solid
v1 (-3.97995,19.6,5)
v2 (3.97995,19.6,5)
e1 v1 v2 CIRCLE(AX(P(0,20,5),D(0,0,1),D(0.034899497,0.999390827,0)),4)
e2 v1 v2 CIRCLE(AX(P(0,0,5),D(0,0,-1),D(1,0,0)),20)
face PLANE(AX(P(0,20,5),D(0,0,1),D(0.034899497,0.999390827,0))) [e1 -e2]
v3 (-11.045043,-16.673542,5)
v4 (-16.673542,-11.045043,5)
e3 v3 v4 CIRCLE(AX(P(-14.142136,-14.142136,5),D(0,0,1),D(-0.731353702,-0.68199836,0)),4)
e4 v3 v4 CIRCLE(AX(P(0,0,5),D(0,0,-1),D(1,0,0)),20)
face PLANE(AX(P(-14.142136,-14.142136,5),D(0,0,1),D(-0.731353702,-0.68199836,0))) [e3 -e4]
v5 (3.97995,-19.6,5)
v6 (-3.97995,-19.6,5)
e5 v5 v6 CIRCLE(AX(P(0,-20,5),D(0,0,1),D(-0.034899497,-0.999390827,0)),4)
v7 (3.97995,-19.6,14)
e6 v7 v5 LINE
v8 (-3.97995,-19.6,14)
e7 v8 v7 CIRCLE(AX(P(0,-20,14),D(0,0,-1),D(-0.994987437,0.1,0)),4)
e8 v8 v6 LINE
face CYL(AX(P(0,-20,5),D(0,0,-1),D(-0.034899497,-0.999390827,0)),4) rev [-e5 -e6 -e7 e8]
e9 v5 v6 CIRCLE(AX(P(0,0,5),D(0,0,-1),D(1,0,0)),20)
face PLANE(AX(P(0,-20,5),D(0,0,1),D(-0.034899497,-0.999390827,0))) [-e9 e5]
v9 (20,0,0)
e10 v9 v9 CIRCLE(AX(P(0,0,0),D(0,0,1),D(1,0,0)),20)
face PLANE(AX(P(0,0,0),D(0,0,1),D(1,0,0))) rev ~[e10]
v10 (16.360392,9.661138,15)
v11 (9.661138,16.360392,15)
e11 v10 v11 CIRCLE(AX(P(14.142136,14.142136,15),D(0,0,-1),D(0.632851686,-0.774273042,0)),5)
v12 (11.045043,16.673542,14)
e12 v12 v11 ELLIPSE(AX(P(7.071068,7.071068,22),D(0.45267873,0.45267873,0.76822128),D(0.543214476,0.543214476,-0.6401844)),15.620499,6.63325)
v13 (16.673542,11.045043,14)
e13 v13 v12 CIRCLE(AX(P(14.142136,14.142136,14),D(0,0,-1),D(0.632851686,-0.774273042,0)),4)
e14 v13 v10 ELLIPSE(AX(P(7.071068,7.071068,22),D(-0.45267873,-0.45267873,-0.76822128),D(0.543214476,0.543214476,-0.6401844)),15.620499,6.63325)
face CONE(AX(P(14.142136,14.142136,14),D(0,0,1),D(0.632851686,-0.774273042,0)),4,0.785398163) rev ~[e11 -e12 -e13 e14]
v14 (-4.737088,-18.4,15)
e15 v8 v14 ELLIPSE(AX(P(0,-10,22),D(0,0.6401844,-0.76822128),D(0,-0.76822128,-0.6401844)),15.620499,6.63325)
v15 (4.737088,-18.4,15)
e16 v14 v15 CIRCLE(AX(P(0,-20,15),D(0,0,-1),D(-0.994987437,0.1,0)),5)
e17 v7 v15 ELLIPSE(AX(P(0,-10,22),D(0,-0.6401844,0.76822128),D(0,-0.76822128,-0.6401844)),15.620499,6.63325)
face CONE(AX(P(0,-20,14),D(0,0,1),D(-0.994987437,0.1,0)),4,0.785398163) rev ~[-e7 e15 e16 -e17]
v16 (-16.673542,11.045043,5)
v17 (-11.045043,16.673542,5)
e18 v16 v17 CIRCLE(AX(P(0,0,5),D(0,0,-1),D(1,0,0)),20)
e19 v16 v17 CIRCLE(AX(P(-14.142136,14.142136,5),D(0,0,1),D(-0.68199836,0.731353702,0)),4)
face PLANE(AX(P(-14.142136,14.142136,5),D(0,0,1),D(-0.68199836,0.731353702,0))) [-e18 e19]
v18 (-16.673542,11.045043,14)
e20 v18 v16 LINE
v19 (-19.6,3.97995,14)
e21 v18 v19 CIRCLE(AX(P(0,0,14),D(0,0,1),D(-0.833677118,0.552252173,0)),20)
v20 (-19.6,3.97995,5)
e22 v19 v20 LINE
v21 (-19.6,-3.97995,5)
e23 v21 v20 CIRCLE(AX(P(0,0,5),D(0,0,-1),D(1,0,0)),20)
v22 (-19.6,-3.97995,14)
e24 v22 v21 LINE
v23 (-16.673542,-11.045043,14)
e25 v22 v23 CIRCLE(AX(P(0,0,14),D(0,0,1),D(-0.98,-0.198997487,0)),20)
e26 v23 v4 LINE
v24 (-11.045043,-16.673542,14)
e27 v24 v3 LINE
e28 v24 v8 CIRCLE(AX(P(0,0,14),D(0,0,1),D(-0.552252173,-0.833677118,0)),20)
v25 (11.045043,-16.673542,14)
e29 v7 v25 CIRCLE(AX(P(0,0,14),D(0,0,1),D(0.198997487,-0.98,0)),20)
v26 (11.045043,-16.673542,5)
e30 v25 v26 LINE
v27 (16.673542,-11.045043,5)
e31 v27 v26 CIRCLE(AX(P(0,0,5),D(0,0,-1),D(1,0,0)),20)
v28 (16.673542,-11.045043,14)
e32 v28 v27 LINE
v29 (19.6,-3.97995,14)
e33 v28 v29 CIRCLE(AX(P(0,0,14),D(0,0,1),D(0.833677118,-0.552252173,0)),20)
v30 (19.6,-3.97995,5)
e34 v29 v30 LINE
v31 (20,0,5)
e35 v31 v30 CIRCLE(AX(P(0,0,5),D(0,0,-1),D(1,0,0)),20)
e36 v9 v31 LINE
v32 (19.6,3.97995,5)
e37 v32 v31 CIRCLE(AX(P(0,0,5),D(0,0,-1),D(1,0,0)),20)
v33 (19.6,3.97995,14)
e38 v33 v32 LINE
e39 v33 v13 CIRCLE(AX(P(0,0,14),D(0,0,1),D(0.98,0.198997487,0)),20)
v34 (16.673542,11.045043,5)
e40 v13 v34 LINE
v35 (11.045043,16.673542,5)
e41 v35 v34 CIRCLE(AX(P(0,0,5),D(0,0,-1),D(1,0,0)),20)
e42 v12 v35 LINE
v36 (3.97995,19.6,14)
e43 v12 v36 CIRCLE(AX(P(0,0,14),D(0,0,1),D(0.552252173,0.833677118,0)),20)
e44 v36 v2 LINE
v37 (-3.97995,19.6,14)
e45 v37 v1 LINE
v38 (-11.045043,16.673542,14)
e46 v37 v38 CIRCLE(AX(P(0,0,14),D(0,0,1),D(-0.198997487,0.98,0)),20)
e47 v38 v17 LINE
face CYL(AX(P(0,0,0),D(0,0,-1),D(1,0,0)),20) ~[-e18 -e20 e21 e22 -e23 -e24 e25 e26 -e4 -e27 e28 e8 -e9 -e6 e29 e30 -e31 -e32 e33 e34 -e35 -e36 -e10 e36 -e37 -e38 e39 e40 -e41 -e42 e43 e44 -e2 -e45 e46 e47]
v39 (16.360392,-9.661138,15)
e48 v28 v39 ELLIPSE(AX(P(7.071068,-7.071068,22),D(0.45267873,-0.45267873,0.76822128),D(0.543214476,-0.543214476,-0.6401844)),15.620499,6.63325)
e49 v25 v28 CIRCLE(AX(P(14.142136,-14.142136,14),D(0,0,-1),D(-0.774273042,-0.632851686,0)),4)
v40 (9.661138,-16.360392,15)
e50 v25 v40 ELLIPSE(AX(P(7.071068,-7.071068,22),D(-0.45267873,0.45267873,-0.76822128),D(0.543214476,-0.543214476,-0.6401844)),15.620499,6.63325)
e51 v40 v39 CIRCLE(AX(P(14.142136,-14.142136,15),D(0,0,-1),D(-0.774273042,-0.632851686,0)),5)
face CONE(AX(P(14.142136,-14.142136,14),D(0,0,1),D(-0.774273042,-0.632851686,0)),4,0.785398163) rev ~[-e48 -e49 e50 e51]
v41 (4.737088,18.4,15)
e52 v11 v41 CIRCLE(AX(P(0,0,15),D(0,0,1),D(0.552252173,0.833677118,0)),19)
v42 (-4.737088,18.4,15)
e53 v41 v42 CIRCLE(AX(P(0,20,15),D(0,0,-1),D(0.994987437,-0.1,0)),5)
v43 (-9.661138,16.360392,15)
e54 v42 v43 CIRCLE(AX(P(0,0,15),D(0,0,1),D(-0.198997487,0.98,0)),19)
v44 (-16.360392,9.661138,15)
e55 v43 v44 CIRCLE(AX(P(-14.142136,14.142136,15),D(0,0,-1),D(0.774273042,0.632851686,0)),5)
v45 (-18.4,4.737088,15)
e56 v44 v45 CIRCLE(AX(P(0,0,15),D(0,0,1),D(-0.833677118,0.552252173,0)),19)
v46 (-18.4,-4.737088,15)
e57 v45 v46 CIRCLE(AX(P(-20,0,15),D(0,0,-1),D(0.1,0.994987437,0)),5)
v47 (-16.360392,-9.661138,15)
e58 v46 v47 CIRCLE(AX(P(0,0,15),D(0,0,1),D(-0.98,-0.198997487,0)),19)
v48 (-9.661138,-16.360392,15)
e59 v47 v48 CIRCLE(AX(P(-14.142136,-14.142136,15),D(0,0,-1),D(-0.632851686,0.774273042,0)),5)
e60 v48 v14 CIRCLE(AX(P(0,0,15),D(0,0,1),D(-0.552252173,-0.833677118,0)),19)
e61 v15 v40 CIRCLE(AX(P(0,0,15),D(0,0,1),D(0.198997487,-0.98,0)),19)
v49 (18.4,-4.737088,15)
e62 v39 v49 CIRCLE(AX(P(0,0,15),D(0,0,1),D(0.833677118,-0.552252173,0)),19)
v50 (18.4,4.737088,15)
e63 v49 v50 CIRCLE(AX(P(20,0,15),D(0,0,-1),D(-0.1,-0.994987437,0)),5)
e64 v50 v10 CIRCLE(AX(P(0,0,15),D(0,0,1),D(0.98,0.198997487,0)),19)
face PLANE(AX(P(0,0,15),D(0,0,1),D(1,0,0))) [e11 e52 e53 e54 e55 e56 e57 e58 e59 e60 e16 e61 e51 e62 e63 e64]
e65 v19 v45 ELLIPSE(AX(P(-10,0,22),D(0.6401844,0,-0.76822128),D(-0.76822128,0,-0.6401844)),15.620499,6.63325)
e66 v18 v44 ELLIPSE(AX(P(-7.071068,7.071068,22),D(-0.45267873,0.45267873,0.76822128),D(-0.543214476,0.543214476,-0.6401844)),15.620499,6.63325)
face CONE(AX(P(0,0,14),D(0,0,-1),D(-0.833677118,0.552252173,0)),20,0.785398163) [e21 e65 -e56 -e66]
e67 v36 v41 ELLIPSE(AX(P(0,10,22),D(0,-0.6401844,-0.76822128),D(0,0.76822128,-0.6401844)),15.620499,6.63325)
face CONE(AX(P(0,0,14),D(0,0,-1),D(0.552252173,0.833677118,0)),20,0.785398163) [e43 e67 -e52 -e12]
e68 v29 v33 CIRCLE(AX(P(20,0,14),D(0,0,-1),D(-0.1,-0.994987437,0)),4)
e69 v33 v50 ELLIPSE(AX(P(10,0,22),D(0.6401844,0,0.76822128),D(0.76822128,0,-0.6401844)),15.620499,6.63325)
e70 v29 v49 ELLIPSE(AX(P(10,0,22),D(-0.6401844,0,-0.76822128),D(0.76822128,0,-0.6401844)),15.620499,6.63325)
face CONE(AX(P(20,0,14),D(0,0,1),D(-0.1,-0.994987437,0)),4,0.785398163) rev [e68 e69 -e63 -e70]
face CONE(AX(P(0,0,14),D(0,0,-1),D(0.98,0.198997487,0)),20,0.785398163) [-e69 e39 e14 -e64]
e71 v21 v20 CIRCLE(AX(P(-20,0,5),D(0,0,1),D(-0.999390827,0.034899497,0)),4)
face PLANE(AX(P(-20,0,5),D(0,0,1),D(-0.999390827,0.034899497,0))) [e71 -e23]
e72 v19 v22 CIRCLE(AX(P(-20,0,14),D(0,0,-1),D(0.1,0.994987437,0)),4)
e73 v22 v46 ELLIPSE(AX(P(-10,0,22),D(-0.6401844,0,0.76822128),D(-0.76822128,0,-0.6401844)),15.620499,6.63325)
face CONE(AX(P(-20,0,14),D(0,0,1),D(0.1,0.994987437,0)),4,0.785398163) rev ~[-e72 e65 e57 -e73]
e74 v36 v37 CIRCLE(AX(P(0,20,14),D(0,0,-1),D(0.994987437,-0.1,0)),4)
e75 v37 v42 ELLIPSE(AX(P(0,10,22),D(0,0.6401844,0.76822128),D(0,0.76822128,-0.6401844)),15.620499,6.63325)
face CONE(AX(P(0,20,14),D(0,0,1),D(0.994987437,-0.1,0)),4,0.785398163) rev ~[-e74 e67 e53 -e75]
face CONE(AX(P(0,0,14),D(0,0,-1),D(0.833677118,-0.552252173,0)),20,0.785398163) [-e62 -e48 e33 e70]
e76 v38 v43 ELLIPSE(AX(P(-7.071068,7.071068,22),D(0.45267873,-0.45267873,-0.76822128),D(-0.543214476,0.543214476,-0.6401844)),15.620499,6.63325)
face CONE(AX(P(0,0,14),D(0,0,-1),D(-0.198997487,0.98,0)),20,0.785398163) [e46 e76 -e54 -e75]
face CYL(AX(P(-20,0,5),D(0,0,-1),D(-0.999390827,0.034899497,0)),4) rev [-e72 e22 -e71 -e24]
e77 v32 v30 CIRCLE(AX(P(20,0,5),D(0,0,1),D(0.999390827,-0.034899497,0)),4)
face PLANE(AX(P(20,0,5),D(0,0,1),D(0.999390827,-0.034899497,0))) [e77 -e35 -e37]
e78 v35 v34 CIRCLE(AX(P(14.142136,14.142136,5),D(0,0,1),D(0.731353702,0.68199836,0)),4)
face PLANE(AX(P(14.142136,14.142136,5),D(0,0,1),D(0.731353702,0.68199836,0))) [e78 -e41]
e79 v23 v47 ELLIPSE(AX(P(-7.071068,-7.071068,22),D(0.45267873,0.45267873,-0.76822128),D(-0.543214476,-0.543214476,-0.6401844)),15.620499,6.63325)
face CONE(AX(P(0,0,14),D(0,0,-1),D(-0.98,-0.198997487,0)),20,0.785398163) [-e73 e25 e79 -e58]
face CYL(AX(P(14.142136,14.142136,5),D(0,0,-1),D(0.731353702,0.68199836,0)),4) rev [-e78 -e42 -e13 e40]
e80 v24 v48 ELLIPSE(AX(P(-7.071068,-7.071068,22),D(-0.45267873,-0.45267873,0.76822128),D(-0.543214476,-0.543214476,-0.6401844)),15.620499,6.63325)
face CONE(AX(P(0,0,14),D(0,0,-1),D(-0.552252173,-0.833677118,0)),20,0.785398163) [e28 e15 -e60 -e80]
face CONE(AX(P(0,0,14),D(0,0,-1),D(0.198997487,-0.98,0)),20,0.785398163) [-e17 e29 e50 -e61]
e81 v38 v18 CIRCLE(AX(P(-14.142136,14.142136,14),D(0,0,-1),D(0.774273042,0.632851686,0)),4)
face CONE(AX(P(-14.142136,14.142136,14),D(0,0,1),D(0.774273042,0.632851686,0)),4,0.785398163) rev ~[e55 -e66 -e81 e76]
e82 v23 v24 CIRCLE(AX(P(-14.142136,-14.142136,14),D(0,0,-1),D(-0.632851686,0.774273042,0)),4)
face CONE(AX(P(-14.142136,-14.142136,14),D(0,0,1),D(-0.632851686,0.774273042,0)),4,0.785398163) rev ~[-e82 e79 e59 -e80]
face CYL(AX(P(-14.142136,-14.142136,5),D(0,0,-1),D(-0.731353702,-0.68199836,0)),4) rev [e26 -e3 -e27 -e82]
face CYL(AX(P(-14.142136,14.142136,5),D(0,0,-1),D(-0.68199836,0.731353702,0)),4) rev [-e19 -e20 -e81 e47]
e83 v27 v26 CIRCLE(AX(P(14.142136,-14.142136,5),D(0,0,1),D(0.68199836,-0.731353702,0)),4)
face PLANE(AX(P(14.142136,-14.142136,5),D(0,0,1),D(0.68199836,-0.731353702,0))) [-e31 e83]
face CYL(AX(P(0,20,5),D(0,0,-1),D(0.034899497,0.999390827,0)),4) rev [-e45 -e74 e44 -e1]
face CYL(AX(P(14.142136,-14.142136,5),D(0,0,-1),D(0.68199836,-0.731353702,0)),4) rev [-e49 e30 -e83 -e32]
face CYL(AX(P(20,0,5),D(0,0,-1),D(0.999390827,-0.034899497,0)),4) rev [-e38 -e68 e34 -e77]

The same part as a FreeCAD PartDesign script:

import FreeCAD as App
import Part
import Sketcher

V = App.Vector
Q = App.Units.Quantity


def edges_at(feature, points):
    """Names of the edges that pass closest to the given points."""
    edges = feature.Shape.Edges
    near = lambda p: min(range(len(edges)), key=lambda i: edges[i].distToShape(Part.Vertex(*p))[0])
    return sorted({f"Edge{near(p) + 1}" for p in points})

doc = App.newDocument("Part")
body = doc.addObject("PartDesign::Body", "Body")

# Sketch on XY plane
sketch1 = doc.addObject("Sketcher::SketchObject", "Sketch")
body.addObject(sketch1)
sketch1.AttachmentSupport = (doc.XY_Plane, [""])
sketch1.MapMode = "FlatFace"
sketch1.addGeometry(Part.Circle(V(0, 0, 0), V(0, 0, 1), 4), False)
sketch1.addConstraint(Sketcher.Constraint("Coincident", 0, 3, -1, 1))
sketch1.addConstraint(Sketcher.Constraint("Diameter", 0, Q("8 mm")))
pad1 = doc.addObject("PartDesign::Pad", "Pad")
body.addObject(pad1)
pad1.Profile = sketch1
pad1.Length = 13
body2 = doc.addObject("PartDesign::Body", "Body001")
doc.recompute()

body.Placement = App.Placement(V(20, 0, 5), App.Rotation(V(0, 0, -1), 2))
boolean = doc.addObject("PartDesign::Boolean", "Boolean")
body2.addObject(boolean)
boolean.Type = "Fuse"
boolean.addObjects([body])
body3 = doc.addObject("PartDesign::Body", "Body002")
body3.AllowCompound = True
doc.recompute()

body3.BaseFeature = body2
doc.recompute()

body4 = doc.addObject("PartDesign::Body", "Body003")
body4.BaseFeature = body2
body4.Placement = App.Placement(V(0, 0, 0), App.Rotation(V(0, 0, 1), 45))
boolean2 = doc.addObject("PartDesign::Boolean", "Boolean001")
body3.addObject(boolean2)
boolean2.Type = "Fuse"
boolean2.addObjects([body4])
doc.recompute()

body5 = doc.addObject("PartDesign::Body", "Body004")
body5.BaseFeature = body2
body5.Placement = App.Placement(V(0, 0, 0), App.Rotation(V(0, 0, 1), 90))
boolean3 = doc.addObject("PartDesign::Boolean", "Boolean002")
body3.addObject(boolean3)
boolean3.Type = "Fuse"
boolean3.addObjects([body5])
doc.recompute()

body6 = doc.addObject("PartDesign::Body", "Body005")
body6.BaseFeature = body2
body6.Placement = App.Placement(V(0, 0, 0), App.Rotation(V(0, 0, 1), 135))
boolean4 = doc.addObject("PartDesign::Boolean", "Boolean003")
body3.addObject(boolean4)
boolean4.Type = "Fuse"
boolean4.addObjects([body6])
doc.recompute()

body7 = doc.addObject("PartDesign::Body", "Body006")
body7.BaseFeature = body2
body7.Placement = App.Placement(V(0, 0, 0), App.Rotation(V(0, 0, 1), 180))
boolean5 = doc.addObject("PartDesign::Boolean", "Boolean004")
body3.addObject(boolean5)
boolean5.Type = "Fuse"
boolean5.addObjects([body7])
doc.recompute()

body8 = doc.addObject("PartDesign::Body", "Body007")
body8.BaseFeature = body2
body8.Placement = App.Placement(V(0, 0, 0), App.Rotation(V(0, 0, 1), 225))
boolean6 = doc.addObject("PartDesign::Boolean", "Boolean005")
body3.addObject(boolean6)
boolean6.Type = "Fuse"
boolean6.addObjects([body8])
doc.recompute()

body9 = doc.addObject("PartDesign::Body", "Body008")
body9.BaseFeature = body2
body9.Placement = App.Placement(V(0, 0, 0), App.Rotation(V(0, 0, 1), 270))
boolean7 = doc.addObject("PartDesign::Boolean", "Boolean006")
body3.addObject(boolean7)
boolean7.Type = "Fuse"
boolean7.addObjects([body9])
doc.recompute()

body2.Placement = App.Placement(V(0, 0, 0), App.Rotation(V(0, 0, 1), 315))
boolean8 = doc.addObject("PartDesign::Boolean", "Boolean007")
body3.addObject(boolean8)
boolean8.Type = "Fuse"
boolean8.addObjects([body2])
body10 = doc.addObject("PartDesign::Body", "Body009")

# Sketch on XY plane
sketch2 = doc.addObject("Sketcher::SketchObject", "Sketch001")
body10.addObject(sketch2)
sketch2.AttachmentSupport = (doc.getObject("XY_Plane009"), [""])
sketch2.MapMode = "FlatFace"
sketch2.addGeometry(Part.Circle(V(0, 0, 0), V(0, 0, 1), 20), False)
sketch2.addConstraint(Sketcher.Constraint("Coincident", 0, 3, -1, 1))
sketch2.addConstraint(Sketcher.Constraint("Diameter", 0, Q("40 mm")))
pad2 = doc.addObject("PartDesign::Pad", "Pad001")
body10.addObject(pad2)
pad2.Profile = sketch2
pad2.Length = 15
doc.recompute()

boolean9 = doc.addObject("PartDesign::Boolean", "Boolean008")
body10.addObject(boolean9)
boolean9.Type = "Cut"
boolean9.addObjects([body3])
doc.recompute()

chamfer = doc.addObject("PartDesign::Chamfer", "Chamfer")
body10.addObject(chamfer)
chamfer.Base = (boolean9, edges_at(boolean9, [
    (18.478, 7.654, 15),
    (7.654, 18.478, 15),
    (-7.654, 18.478, 15),
    (-18.478, 7.654, 15),
    (-18.478, -7.654, 15),
    (-7.654, -18.478, 15),
    (7.654, -18.478, 15),
    (18.478, -7.654, 15),
    (16, 0, 15),
    (11.314, -11.314, 15),
    (0, -16, 15),
    (-11.314, -11.314, 15),
    (-16, 0, 15),
    (-11.314, 11.314, 15),
    (0, 16, 15),
    (11.314, 11.314, 15),
]))
chamfer.Size = 1

doc.recompute()
